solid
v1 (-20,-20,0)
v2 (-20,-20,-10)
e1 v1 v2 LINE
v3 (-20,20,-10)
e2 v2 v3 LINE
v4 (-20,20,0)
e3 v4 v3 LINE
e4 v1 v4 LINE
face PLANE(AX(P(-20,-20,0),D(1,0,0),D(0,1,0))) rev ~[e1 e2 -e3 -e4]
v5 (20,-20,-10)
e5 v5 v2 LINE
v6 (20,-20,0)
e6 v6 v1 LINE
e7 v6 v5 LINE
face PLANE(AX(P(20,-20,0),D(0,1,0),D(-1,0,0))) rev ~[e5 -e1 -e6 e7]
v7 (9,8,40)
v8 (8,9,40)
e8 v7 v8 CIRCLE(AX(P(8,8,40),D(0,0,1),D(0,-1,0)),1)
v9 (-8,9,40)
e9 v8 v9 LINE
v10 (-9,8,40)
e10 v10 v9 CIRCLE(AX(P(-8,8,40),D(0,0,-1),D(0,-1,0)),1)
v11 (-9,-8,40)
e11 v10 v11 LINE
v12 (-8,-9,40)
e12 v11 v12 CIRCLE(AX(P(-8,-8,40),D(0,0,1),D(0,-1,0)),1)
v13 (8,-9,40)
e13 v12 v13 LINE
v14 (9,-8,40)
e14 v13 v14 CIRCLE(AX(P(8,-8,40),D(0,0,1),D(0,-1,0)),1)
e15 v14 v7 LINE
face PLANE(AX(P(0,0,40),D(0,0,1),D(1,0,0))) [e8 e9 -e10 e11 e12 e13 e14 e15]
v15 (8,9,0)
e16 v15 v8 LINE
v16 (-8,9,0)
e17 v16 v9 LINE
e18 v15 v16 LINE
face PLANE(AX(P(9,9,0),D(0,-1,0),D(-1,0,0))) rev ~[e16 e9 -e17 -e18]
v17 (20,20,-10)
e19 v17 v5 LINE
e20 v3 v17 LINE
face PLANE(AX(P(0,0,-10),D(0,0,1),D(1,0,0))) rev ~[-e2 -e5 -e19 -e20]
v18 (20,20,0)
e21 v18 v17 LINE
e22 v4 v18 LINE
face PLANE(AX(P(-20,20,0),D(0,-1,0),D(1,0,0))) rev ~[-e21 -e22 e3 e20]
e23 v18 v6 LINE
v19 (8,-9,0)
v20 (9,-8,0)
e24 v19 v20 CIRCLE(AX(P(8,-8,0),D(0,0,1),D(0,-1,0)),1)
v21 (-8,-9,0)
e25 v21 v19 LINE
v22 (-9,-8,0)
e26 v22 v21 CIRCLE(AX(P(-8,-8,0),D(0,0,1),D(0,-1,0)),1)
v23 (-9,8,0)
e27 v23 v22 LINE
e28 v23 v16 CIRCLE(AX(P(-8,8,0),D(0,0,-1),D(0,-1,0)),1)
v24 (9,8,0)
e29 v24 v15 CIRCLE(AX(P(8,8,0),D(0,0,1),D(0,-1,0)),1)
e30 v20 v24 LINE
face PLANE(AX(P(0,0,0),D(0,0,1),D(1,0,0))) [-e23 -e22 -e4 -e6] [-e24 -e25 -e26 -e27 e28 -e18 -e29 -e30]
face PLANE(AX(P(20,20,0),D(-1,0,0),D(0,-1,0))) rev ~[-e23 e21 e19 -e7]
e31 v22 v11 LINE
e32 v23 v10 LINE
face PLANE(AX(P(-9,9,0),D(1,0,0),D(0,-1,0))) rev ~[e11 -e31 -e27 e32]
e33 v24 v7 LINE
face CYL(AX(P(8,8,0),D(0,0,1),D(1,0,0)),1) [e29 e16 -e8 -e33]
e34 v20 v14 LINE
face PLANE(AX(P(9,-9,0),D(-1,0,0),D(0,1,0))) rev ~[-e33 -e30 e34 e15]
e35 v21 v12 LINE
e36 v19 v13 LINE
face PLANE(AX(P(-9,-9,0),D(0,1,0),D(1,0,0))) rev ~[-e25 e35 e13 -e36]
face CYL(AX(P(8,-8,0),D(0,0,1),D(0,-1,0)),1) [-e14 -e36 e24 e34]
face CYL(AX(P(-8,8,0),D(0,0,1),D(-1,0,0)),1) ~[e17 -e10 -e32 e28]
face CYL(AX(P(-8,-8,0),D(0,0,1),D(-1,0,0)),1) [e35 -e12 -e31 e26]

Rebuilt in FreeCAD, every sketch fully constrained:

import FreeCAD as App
import Part
import Sketcher
Q = App.Units.Quantity


def edges_at(feature, points):
    """Names of the edges that pass closest to the given points."""
    edges = feature.Shape.Edges
    near = lambda p: min(range(len(edges)), key=lambda i: edges[i].distToShape(Part.Vertex(*p))[0])
    return sorted({f"Edge{near(p) + 1}" for p in points})


def add_polygon(sketch, points):
    """Adds a closed chain of lines whose ends are joined by coincident constraints."""
    first, n = sketch.GeometryCount, len(points)
    for a, b in zip(points, points[1:] + points[:1]):
        sketch.addGeometry(Part.LineSegment(App.Vector(*a, 0), App.Vector(*b, 0)), False)
    for i in range(n):
        sketch.addConstraint(Sketcher.Constraint("Coincident", first + i, 2, first + (i + 1) % n, 1))

doc = App.newDocument("Part")
body = doc.addObject("PartDesign::Body", "Body")

# Sketch on XY plane
sketch1 = body.newObject("Sketcher::SketchObject", "Sketch")
sketch1.AttachmentSupport = (doc.getObject("XY_Plane"), [""])
sketch1.MapMode = "FlatFace"
add_polygon(sketch1, [(-9, 9), (-9, -9), (9, -9), (9, 9)])  # lines 0-3
sketch1.addConstraint([
    Sketcher.Constraint("Vertical", 0),
    Sketcher.Constraint("Horizontal", 1),
    Sketcher.Constraint("Vertical", 2),
    Sketcher.Constraint("Horizontal", 3),
    Sketcher.Constraint("Symmetric", 0, 2, 2, 2, -1, 1),
    Sketcher.Constraint("Equal", 3, 0),
    Sketcher.Constraint("DistanceX", 1, 1, 1, 2, Q("18 mm")),
])
pad1 = body.newObject("PartDesign::Pad", "Pad")
pad1.Profile = sketch1
pad1.Length = 40

# Sketch on XY plane
sketch2 = body.newObject("Sketcher::SketchObject", "Sketch001")
sketch2.AttachmentSupport = (doc.getObject("XY_Plane"), [""])
sketch2.MapMode = "FlatFace"
add_polygon(sketch2, [(-20, -20), (20, -20), (20, 20), (-20, 20)])  # lines 0-3
sketch2.addConstraint([
    Sketcher.Constraint("Horizontal", 0),
    Sketcher.Constraint("Vertical", 1),
    Sketcher.Constraint("Horizontal", 2),
    Sketcher.Constraint("Vertical", 3),
    Sketcher.Constraint("Symmetric", 0, 2, 2, 2, -1, 1),
    Sketcher.Constraint("Equal", 2, 1),
    Sketcher.Constraint("DistanceX", 0, 1, 0, 2, Q("40 mm")),
])
pad2 = body.newObject("PartDesign::Pad", "Pad001")
pad2.Profile = sketch2
pad2.Length = 10
pad2.Reversed = True
doc.recompute()

fillet = body.newObject("PartDesign::Fillet", "Fillet")
fillet.Base = (pad2, edges_at(pad2, [
    (9, 9, 20),
    (9, -9, 20),
    (-9, -9, 20),
    (-9, 9, 20),
]))
fillet.Radius = 1

doc.recompute()
